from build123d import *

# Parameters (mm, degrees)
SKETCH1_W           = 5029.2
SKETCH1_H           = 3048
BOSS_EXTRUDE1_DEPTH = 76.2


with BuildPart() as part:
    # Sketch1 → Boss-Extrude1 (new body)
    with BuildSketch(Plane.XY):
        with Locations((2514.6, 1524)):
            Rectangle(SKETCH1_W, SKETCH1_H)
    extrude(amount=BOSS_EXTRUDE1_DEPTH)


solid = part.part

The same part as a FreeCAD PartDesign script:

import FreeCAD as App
import Part
import Sketcher
Q = App.Units.Quantity


def add_polygon(sketch, points):
    """Adds a closed chain of lines whose ends are joined by coincident constraints."""
    first, n = sketch.GeometryCount, len(points)
    for a, b in zip(points, points[1:] + points[:1]):
        sketch.addGeometry(Part.LineSegment(App.Vector(*a, 0), App.Vector(*b, 0)), False)
    for i in range(n):
        sketch.addConstraint(Sketcher.Constraint("Coincident", first + i, 2, first + (i + 1) % n, 1))

doc = App.newDocument("Part")
body = doc.addObject("PartDesign::Body", "Body")

# Sketch on XY plane
sketch1 = doc.addObject("Sketcher::SketchObject", "Sketch")
body.addObject(sketch1)
sketch1.AttachmentSupport = (doc.XY_Plane, [""])
sketch1.MapMode = "FlatFace"
add_polygon(sketch1, [(0, 3048), (0, 0), (5029, 0), (5029, 3048)])  # lines 0-3
sketch1.addConstraint(Sketcher.Constraint("Vertical", 0))
sketch1.addConstraint(Sketcher.Constraint("Horizontal", 1))
sketch1.addConstraint(Sketcher.Constraint("Vertical", 2))
sketch1.addConstraint(Sketcher.Constraint("Horizontal", 3))
sketch1.addConstraint(Sketcher.Constraint("Coincident", 0, 2, -1, 1))
sketch1.addConstraint(Sketcher.Constraint("DistanceX", 1, 1, 1, 2, Q("198 in")))
sketch1.addConstraint(Sketcher.Constraint("DistanceY", 0, 2, 0, 1, Q("120 in")))
pad1 = doc.addObject("PartDesign::Pad", "Pad")
body.addObject(pad1)
pad1.Profile = sketch1
pad1.Length = Q("3 in")

doc.recompute()
